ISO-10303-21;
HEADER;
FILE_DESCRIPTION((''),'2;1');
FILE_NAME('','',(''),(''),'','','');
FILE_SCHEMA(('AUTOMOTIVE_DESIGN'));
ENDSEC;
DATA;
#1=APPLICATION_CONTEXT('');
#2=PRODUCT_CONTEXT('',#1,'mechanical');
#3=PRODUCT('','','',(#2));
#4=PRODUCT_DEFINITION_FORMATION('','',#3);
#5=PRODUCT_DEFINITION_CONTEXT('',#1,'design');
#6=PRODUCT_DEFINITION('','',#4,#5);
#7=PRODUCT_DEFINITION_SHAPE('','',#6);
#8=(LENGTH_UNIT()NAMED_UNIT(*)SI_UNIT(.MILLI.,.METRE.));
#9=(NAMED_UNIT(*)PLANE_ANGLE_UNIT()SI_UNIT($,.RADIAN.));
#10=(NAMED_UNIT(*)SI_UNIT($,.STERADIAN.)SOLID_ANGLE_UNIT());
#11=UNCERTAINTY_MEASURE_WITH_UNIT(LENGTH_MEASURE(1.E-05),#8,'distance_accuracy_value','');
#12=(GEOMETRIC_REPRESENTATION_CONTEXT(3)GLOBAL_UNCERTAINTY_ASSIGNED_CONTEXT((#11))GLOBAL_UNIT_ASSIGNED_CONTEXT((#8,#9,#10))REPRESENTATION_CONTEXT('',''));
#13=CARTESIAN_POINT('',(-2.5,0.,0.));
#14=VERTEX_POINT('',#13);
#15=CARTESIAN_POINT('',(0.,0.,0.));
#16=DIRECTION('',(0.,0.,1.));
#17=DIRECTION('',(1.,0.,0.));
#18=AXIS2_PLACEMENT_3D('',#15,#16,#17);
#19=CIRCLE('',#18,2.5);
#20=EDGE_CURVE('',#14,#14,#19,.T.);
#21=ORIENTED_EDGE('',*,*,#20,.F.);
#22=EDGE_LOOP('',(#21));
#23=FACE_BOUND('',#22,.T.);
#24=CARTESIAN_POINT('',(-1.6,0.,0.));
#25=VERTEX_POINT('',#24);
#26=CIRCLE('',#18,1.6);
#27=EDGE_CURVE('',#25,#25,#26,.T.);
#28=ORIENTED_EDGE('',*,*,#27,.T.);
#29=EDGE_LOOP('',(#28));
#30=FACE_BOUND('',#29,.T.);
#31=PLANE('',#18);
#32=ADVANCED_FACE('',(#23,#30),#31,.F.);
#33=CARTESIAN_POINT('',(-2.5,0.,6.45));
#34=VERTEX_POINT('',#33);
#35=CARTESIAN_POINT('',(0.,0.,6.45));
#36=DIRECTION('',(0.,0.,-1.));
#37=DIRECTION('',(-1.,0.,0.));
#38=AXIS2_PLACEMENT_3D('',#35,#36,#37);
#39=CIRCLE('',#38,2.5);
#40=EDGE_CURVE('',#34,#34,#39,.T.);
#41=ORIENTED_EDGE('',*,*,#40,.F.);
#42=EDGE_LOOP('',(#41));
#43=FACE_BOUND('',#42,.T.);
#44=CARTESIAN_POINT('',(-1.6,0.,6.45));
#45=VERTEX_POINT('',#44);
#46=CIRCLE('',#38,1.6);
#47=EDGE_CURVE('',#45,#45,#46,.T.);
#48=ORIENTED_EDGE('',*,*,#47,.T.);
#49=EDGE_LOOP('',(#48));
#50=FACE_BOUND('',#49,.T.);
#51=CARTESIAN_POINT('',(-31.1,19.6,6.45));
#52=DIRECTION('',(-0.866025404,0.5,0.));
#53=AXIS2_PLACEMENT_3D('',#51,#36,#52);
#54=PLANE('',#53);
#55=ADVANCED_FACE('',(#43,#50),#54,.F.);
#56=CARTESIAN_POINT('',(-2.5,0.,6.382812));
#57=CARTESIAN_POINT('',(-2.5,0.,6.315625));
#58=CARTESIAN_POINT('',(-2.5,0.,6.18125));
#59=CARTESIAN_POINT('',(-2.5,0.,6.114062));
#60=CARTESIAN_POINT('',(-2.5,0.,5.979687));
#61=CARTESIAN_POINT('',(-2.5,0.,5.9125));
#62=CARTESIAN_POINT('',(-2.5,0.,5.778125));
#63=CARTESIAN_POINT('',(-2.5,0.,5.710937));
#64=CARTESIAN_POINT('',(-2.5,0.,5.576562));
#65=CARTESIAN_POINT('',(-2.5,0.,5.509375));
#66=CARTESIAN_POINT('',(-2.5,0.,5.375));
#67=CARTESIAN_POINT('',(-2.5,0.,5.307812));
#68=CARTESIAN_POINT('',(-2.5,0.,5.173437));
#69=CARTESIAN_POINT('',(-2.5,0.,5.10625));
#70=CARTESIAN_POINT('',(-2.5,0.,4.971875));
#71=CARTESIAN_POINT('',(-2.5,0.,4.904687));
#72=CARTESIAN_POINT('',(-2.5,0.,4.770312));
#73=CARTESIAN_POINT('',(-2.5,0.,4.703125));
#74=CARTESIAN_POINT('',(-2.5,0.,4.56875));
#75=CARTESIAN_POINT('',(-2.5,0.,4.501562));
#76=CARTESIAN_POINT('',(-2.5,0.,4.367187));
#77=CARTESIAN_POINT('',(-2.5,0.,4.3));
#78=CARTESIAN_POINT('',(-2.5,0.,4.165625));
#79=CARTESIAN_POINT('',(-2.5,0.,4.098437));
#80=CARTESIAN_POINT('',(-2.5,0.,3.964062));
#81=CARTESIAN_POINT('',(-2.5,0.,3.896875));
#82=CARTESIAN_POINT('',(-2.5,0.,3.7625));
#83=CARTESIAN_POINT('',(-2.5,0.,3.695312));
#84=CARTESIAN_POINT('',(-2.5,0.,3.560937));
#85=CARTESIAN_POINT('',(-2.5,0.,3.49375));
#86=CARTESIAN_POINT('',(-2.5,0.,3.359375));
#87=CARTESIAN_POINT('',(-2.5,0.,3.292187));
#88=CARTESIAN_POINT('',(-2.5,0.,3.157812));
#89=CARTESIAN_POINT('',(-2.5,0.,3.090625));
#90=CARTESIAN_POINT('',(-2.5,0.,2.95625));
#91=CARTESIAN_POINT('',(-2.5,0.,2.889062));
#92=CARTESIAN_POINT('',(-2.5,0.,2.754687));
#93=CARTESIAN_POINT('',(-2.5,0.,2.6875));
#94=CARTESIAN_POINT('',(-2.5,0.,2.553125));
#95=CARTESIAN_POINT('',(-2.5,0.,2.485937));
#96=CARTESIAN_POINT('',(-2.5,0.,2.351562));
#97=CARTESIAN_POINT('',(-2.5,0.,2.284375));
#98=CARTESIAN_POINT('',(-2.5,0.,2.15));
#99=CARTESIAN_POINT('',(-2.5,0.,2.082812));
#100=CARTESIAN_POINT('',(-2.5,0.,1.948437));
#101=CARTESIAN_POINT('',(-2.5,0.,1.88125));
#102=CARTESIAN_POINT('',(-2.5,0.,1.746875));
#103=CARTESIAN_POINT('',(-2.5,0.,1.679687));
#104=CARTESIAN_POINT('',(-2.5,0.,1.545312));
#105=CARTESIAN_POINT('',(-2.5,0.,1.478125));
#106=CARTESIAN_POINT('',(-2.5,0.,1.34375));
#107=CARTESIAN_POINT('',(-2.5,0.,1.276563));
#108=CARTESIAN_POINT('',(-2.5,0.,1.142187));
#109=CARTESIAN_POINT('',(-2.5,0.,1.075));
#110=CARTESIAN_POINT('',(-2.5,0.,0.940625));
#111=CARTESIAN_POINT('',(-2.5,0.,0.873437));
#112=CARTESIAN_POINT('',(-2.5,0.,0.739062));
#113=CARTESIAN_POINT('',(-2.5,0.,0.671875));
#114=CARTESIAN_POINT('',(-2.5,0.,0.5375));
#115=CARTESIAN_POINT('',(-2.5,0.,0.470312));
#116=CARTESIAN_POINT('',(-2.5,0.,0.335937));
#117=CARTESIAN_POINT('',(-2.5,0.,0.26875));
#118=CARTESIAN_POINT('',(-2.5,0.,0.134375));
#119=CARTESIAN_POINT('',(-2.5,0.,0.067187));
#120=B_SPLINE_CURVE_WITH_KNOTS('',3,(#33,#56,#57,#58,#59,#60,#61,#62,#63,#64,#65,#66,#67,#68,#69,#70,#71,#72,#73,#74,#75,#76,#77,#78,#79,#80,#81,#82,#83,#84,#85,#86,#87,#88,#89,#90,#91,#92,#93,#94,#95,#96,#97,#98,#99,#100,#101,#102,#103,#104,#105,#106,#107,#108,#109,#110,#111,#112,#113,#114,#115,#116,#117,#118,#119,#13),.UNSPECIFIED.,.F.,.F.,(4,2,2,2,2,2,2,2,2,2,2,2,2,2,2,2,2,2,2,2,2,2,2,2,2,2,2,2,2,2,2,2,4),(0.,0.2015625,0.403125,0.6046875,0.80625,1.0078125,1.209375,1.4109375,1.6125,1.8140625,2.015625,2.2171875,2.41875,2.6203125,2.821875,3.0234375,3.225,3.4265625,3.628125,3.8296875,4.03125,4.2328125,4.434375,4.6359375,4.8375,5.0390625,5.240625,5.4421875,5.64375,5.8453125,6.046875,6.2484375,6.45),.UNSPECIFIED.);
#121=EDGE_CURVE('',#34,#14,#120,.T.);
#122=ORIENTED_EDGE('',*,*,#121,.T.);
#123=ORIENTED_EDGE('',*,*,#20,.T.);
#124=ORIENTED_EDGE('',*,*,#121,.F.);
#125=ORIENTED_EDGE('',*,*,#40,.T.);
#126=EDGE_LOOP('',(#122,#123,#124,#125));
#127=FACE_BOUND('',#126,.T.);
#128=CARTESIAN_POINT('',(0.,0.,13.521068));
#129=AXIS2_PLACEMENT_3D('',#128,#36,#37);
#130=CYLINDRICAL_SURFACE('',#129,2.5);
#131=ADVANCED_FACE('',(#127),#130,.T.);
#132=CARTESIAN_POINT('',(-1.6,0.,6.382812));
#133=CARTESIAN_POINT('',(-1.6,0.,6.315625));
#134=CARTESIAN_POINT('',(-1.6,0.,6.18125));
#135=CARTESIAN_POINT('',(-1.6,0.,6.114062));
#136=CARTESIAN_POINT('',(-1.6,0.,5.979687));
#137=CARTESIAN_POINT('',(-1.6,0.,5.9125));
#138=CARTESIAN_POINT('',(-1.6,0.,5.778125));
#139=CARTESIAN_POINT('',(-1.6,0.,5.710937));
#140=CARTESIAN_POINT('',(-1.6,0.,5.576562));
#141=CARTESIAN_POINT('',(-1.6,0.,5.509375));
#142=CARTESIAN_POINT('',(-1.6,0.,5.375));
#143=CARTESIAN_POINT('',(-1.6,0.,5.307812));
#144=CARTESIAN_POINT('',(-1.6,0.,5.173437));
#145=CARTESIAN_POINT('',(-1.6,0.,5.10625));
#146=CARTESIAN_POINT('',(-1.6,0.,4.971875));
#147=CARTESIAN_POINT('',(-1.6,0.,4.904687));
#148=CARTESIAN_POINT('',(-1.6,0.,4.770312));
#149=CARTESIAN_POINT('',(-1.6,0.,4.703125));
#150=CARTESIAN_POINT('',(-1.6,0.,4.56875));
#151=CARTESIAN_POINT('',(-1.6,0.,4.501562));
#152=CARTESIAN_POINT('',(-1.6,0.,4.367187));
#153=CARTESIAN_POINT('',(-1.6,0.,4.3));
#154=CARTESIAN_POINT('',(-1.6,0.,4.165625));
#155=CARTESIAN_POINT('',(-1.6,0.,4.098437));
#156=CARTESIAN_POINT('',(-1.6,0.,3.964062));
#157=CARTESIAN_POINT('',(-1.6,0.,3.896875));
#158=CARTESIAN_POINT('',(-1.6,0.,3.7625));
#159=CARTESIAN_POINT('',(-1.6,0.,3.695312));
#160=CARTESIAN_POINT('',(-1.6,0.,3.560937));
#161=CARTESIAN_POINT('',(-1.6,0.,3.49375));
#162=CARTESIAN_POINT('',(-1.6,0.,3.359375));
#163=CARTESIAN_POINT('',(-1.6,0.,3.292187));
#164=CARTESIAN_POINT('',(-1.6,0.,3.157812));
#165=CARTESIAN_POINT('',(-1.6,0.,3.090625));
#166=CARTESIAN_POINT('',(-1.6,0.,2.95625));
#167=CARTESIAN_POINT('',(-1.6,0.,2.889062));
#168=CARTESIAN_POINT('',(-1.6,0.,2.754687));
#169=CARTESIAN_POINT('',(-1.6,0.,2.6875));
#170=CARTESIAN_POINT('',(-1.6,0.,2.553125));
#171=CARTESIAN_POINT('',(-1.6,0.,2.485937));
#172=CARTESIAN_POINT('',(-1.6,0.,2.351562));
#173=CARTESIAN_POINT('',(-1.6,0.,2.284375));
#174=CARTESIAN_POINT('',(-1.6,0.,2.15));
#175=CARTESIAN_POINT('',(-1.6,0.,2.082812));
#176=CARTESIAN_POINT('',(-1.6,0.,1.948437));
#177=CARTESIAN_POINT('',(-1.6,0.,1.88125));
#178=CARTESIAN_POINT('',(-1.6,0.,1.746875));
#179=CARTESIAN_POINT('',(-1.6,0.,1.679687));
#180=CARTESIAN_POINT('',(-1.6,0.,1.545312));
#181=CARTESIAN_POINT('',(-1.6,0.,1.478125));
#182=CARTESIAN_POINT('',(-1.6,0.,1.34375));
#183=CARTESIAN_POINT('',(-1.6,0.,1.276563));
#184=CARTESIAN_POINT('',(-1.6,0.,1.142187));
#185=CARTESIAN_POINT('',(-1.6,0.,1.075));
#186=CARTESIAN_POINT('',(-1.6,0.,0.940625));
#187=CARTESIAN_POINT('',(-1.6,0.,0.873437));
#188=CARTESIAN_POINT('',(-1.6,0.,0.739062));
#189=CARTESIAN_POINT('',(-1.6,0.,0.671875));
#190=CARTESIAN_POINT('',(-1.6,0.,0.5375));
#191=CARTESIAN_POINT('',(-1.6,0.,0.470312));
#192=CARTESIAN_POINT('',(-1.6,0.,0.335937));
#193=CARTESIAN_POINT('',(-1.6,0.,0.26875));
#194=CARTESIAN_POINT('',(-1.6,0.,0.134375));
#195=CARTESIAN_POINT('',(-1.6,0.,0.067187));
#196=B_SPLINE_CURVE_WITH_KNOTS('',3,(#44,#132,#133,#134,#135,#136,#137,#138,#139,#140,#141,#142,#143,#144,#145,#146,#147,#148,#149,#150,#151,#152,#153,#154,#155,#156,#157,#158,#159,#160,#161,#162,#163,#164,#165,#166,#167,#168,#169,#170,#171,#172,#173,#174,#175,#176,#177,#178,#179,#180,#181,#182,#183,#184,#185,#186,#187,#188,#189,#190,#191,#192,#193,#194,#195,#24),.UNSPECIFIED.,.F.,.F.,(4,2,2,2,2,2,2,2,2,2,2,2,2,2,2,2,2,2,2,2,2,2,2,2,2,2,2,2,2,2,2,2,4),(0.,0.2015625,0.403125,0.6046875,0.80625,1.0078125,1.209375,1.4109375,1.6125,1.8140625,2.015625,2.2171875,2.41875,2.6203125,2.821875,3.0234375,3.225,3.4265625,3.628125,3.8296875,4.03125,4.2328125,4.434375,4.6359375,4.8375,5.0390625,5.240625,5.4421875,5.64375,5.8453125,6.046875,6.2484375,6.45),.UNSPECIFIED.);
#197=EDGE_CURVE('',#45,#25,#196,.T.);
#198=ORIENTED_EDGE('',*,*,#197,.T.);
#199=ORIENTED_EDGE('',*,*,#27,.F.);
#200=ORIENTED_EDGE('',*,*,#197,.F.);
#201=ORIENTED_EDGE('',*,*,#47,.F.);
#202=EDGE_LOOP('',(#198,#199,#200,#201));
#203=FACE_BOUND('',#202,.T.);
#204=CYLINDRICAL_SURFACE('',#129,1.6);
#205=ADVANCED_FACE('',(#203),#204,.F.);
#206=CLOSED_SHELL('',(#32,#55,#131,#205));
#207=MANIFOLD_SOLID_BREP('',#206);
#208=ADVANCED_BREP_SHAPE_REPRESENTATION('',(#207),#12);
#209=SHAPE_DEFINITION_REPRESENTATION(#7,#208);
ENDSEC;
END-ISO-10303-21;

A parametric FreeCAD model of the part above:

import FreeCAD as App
import Part
import Sketcher
Q = App.Units.Quantity

doc = App.newDocument("Part")
body = doc.addObject("PartDesign::Body", "Body")

# Sketch on XY plane
sketch1 = body.newObject("Sketcher::SketchObject", "Sketch")
sketch1.AttachmentSupport = (doc.getObject("XY_Plane"), [""])
sketch1.MapMode = "FlatFace"
sketch1.addGeometry(Part.Circle(App.Vector(0, 0, 0), App.Vector(0, 0, 1), 2.5), False)
sketch1.addGeometry(Part.Circle(App.Vector(0, 0, 0), App.Vector(0, 0, 1), 1.6), False)
sketch1.addConstraint(Sketcher.Constraint("Coincident", 0, 3, -1, 1))
sketch1.addConstraint(Sketcher.Constraint("Coincident", 1, 3, -1, 1))
sketch1.addConstraint(Sketcher.Constraint("Diameter", 0, Q("5 mm")))
sketch1.addConstraint(Sketcher.Constraint("Diameter", 1, Q("3.2 mm")))
pad1 = body.newObject("PartDesign::Pad", "Pad")
pad1.Profile = sketch1
pad1.Length = 6.45

doc.recompute()
